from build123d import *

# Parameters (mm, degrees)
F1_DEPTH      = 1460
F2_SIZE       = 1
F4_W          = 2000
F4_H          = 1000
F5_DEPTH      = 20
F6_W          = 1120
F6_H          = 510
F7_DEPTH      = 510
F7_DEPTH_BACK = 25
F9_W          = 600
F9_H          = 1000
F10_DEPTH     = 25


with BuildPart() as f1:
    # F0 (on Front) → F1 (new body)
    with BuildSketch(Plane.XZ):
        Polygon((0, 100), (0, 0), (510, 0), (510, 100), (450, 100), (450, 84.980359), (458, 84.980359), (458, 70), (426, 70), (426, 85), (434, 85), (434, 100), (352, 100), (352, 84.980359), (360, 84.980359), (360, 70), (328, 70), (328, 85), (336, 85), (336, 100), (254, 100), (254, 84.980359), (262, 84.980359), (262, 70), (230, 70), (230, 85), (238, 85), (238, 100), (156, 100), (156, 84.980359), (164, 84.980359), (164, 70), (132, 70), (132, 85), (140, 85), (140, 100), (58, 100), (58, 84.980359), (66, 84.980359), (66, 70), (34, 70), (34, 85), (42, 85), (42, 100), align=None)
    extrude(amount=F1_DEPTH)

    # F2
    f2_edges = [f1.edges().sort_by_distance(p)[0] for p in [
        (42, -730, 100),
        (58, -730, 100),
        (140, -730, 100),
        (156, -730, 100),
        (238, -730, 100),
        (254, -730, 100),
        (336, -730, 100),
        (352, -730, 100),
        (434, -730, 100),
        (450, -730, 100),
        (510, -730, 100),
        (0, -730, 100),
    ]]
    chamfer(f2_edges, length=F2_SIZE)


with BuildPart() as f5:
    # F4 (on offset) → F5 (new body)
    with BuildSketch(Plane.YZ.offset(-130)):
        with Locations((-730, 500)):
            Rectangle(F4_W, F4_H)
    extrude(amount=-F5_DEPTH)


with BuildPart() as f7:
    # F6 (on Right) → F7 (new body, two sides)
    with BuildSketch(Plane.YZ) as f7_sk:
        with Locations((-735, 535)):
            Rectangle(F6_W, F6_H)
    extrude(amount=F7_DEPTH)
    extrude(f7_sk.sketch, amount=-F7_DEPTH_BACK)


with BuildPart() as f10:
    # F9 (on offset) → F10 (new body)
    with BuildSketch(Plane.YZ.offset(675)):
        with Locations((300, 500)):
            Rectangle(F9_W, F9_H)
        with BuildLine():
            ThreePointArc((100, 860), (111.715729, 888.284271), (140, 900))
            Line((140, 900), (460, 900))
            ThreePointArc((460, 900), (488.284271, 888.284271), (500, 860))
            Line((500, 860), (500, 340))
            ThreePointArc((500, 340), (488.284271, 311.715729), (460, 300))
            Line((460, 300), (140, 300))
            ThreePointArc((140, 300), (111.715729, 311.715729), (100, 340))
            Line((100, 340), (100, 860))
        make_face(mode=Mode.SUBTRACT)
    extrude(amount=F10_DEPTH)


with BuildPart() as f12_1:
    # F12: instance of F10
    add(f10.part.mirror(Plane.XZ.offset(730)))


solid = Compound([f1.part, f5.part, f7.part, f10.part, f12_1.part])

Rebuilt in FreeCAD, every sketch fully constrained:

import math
import FreeCAD as App
import Part
import Sketcher

V = App.Vector


def edges_at(feature, points):
    """Names of the edges that pass closest to the given points."""
    edges = feature.Shape.Edges
    near = lambda p: min(range(len(edges)), key=lambda i: edges[i].distToShape(Part.Vertex(*p))[0])
    return sorted({f"Edge{near(p) + 1}" for p in points})


def add_polygon(sketch, points):
    """Adds a closed chain of lines whose ends are joined by coincident constraints."""
    first, n = sketch.GeometryCount, len(points)
    for a, b in zip(points, points[1:] + points[:1]):
        sketch.addGeometry(Part.LineSegment(App.Vector(*a, 0), App.Vector(*b, 0)), False)
    for i in range(n):
        sketch.addConstraint(Sketcher.Constraint("Coincident", first + i, 2, first + (i + 1) % n, 1))

doc = App.newDocument("Part")
body = doc.addObject("PartDesign::Body", "Body")

# Sketch on XZ plane
sketch1 = body.newObject("Sketcher::SketchObject", "Sketch")
sketch1.AttachmentSupport = (doc.getObject("XZ_Plane"), [""])
sketch1.MapMode = "FlatFace"
add_polygon(sketch1, [(0, 100), (0, 0), (510, 0), (510, 100), (450, 100), (450, 84.980359), (458, 84.980359), (458, 70), (426, 70), (426, 85), (434, 85), (434, 100), (352, 100), (352, 84.980359), (360, 84.980359), (360, 70), (328, 70), (328, 85), (336, 85), (336, 100), (254, 100), (254, 84.980359), (262, 84.980359), (262, 70), (230, 70), (230, 85), (238, 85), (238, 100), (156, 100), (156, 84.980359), (164, 84.980359), (164, 70), (132, 70), (132, 85), (140, 85), (140, 100), (58, 100), (58, 84.980359), (66, 84.980359), (66, 70), (34, 70), (34, 85), (42, 85), (42, 100)])  # lines 0-43
sketch1.addConstraint([
    Sketcher.Constraint("Vertical", 0),
    Sketcher.Constraint("Horizontal", 1),
    Sketcher.Constraint("Vertical", 2),
    Sketcher.Constraint("Horizontal", 3),
    Sketcher.Constraint("Vertical", 4),
    Sketcher.Constraint("Horizontal", 5),
    Sketcher.Constraint("Vertical", 6),
    Sketcher.Constraint("Horizontal", 7),
    Sketcher.Constraint("Vertical", 8),
    Sketcher.Constraint("Horizontal", 9),
    Sketcher.Constraint("Vertical", 10),
    Sketcher.Constraint("Horizontal", 11),
    Sketcher.Constraint("Vertical", 12),
    Sketcher.Constraint("Horizontal", 13),
    Sketcher.Constraint("Vertical", 14),
    Sketcher.Constraint("Horizontal", 15),
    Sketcher.Constraint("Vertical", 16),
    Sketcher.Constraint("Horizontal", 17),
    Sketcher.Constraint("Vertical", 18),
    Sketcher.Constraint("Horizontal", 19),
    Sketcher.Constraint("Vertical", 20),
    Sketcher.Constraint("Horizontal", 21),
    Sketcher.Constraint("Vertical", 22),
    Sketcher.Constraint("Horizontal", 23),
    Sketcher.Constraint("Vertical", 24),
    Sketcher.Constraint("Horizontal", 25),
    Sketcher.Constraint("Vertical", 26),
    Sketcher.Constraint("Horizontal", 27),
    Sketcher.Constraint("Vertical", 28),
    Sketcher.Constraint("Horizontal", 29),
    Sketcher.Constraint("Vertical", 30),
    Sketcher.Constraint("Horizontal", 31),
    Sketcher.Constraint("Vertical", 32),
    Sketcher.Constraint("Horizontal", 33),
    Sketcher.Constraint("Vertical", 34),
    Sketcher.Constraint("Horizontal", 35),
    Sketcher.Constraint("Vertical", 36),
    Sketcher.Constraint("Horizontal", 37),
    Sketcher.Constraint("Vertical", 38),
    Sketcher.Constraint("Horizontal", 39),
    Sketcher.Constraint("Vertical", 40),
    Sketcher.Constraint("Horizontal", 41),
    Sketcher.Constraint("Vertical", 42),
    Sketcher.Constraint("Horizontal", 43),
    Sketcher.Constraint("Coincident", 0, 2, -1, 1),
    Sketcher.Constraint("Horizontal", 3, 2, 10, 2),
    Sketcher.Constraint("Horizontal", 5, 2, 12, 2),
    Sketcher.Constraint("Horizontal", 7, 2, 14, 2),
    Sketcher.Constraint("Horizontal", 9, 2, 16, 2),
    Sketcher.Constraint("Horizontal", 11, 2, 18, 2),
    Sketcher.Constraint("Horizontal", 13, 2, 20, 2),
    Sketcher.Constraint("Horizontal", 15, 2, 22, 2),
    Sketcher.Constraint("Horizontal", 17, 2, 24, 2),
    Sketcher.Constraint("Horizontal", 19, 2, 26, 2),
    Sketcher.Constraint("Horizontal", 21, 2, 28, 2),
    Sketcher.Constraint("Horizontal", 23, 2, 30, 2),
    Sketcher.Constraint("Horizontal", 25, 2, 32, 2),
    Sketcher.Constraint("Horizontal", 27, 2, 34, 2),
    Sketcher.Constraint("Horizontal", 29, 2, 36, 2),
    Sketcher.Constraint("Horizontal", 31, 2, 38, 2),
    Sketcher.Constraint("Horizontal", 33, 2, 40, 2),
    Sketcher.Constraint("Horizontal", 35, 2, 42, 2),
    Sketcher.Constraint("Equal", 5, 9),
    Sketcher.Constraint("Equal", 9, 13),
    Sketcher.Constraint("Equal", 7, 15),
    Sketcher.Constraint("Equal", 13, 17),
    Sketcher.Constraint("Equal", 11, 19),
    Sketcher.Constraint("Equal", 17, 21),
    Sketcher.Constraint("Equal", 15, 23),
    Sketcher.Constraint("Equal", 21, 25),
    Sketcher.Constraint("Equal", 19, 27),
    Sketcher.Constraint("Equal", 25, 29),
    Sketcher.Constraint("Equal", 23, 31),
    Sketcher.Constraint("Equal", 29, 33),
    Sketcher.Constraint("Equal", 27, 35),
    Sketcher.Constraint("Equal", 33, 37),
    Sketcher.Constraint("Equal", 31, 39),
    Sketcher.Constraint("Equal", 37, 41),
    Sketcher.Constraint("Equal", 8, 10),
    Sketcher.Constraint("DistanceX", 1, 1, 1, 2, 510.0),
    Sketcher.Constraint("DistanceX", 3, 2, 3, 1, 60.0),
    Sketcher.Constraint("DistanceX", 5, 1, 5, 2, 8.0),
    Sketcher.Constraint("DistanceX", 7, 2, 7, 1, 32.0),
    Sketcher.Constraint("DistanceX", 11, 2, 11, 1, 82.0),
    Sketcher.Constraint("DistanceY", 0, 2, 0, 1, 100.0),
    Sketcher.Constraint("DistanceY", 8, 1, 8, 2, 15.0),
    Sketcher.Constraint("DistanceY", 4, 2, 4, 1, 15.019641),
])
pad1 = body.newObject("PartDesign::Pad", "Pad")
pad1.Profile = sketch1
pad1.Length = 1460
doc.recompute()

chamfer = body.newObject("PartDesign::Chamfer", "Chamfer")
chamfer.Base = (pad1, edges_at(pad1, [
    (42, -730, 100),
    (58, -730, 100),
    (140, -730, 100),
    (156, -730, 100),
    (238, -730, 100),
    (254, -730, 100),
    (336, -730, 100),
    (352, -730, 100),
    (434, -730, 100),
    (450, -730, 100),
    (510, -730, 100),
    (0, -730, 100),
]))
chamfer.Size = 1
body2 = doc.addObject("PartDesign::Body", "Body001")

# Sketch on YZ plane
sketch2 = body2.newObject("Sketcher::SketchObject", "Sketch001")
sketch2.AttachmentSupport = (doc.getObject("YZ_Plane001"), [""])
sketch2.MapMode = "FlatFace"
sketch2.AttachmentOffset = App.Placement(V(0, 0, -130), App.Rotation())
add_polygon(sketch2, [(-1730, 1000), (-1730, 0), (270, 0), (270, 1000)])  # lines 0-3
sketch2.addConstraint([
    Sketcher.Constraint("Vertical", 0),
    Sketcher.Constraint("Horizontal", 1),
    Sketcher.Constraint("Vertical", 2),
    Sketcher.Constraint("Horizontal", 3),
    Sketcher.Constraint("PointOnObject", 0, 2, -1),
    Sketcher.Constraint("DistanceX", 1, 1, 1, 2, 2000.0),
    Sketcher.Constraint("DistanceY", 0, 2, 0, 1, 1000.0),
    Sketcher.Constraint("DistanceX", 0, 2, -1, 1, 1730.0),
])
pad2 = body2.newObject("PartDesign::Pad", "Pad001")
pad2.Profile = sketch2
pad2.Length = 20
pad2.Reversed = True
body3 = doc.addObject("PartDesign::Body", "Body002")

# Sketch on YZ plane
sketch3 = body3.newObject("Sketcher::SketchObject", "Sketch002")
sketch3.AttachmentSupport = (doc.getObject("YZ_Plane002"), [""])
sketch3.MapMode = "FlatFace"
add_polygon(sketch3, [(-1295, 790), (-1295, 280), (-175, 280), (-175, 790)])  # lines 0-3
sketch3.addConstraint([
    Sketcher.Constraint("Vertical", 0),
    Sketcher.Constraint("Horizontal", 1),
    Sketcher.Constraint("Vertical", 2),
    Sketcher.Constraint("Horizontal", 3),
    Sketcher.Constraint("DistanceX", 1, 1, 1, 2, 1120.0),
    Sketcher.Constraint("DistanceY", 0, 2, 0, 1, 510.0),
    Sketcher.Constraint("DistanceX", 0, 2, -1, 1, 1295.0),
    Sketcher.Constraint("DistanceY", -1, 1, 0, 2, 280.0),
])
pad3 = body3.newObject("PartDesign::Pad", "Pad002")
pad3.Profile = sketch3
pad3.Type = "TwoLengths"
pad3.Length = 510
pad3.Length2 = 25
body4 = doc.addObject("PartDesign::Body", "Body003")

# Sketch on YZ plane
sketch4 = body4.newObject("Sketcher::SketchObject", "Sketch003")
sketch4.AttachmentSupport = (doc.getObject("YZ_Plane003"), [""])
sketch4.MapMode = "FlatFace"
sketch4.AttachmentOffset = App.Placement(V(0, 0, 675), App.Rotation())
add_polygon(sketch4, [(0, 1000), (0, 0), (600, 0), (600, 1000)])  # lines 0-3
sketch4.addGeometry(Part.LineSegment(V(100, 340, 0), V(100, 860, 0)), False)  # 4
sketch4.addGeometry(Part.ArcOfCircle(Part.Circle(V(140.000001, 859.999999, 0), V(0, 0, 1), 40.000001), math.radians(90.000001), math.radians(179.999999)), False)  # 5
sketch4.addGeometry(Part.LineSegment(V(140, 900, 0), V(460, 900, 0)), False)  # 6
sketch4.addGeometry(Part.ArcOfCircle(Part.Circle(V(459.999999, 859.999999, 0), V(0, 0, 1), 40.000001), math.radians(0.000001), math.radians(89.999999)), False)  # 7
sketch4.addGeometry(Part.LineSegment(V(500, 860, 0), V(500, 340, 0)), False)  # 8
sketch4.addGeometry(Part.ArcOfCircle(Part.Circle(V(459.999999, 340.000001, 0), V(0, 0, 1), 40.000001), math.radians(-89.999999), math.radians(-0.000001)), False)  # 9
sketch4.addGeometry(Part.LineSegment(V(460, 300, 0), V(140, 300, 0)), False)  # 10
sketch4.addGeometry(Part.ArcOfCircle(Part.Circle(V(140.000001, 340.000001, 0), V(0, 0, 1), 40.000001), math.radians(-179.999999), math.radians(-90.000001)), False)  # 11
sketch4.addConstraint([
    Sketcher.Constraint("Tangent", 4, 2, 5, 2),
    Sketcher.Constraint("Tangent", 5, 1, 6, 1),
    Sketcher.Constraint("Tangent", 6, 2, 7, 2),
    Sketcher.Constraint("Tangent", 7, 1, 8, 1),
    Sketcher.Constraint("Tangent", 8, 2, 9, 2),
    Sketcher.Constraint("Tangent", 9, 1, 10, 1),
    Sketcher.Constraint("Tangent", 10, 2, 11, 2),
    Sketcher.Constraint("Tangent", 11, 1, 4, 1),
    Sketcher.Constraint("Vertical", 0),
    Sketcher.Constraint("Horizontal", 1),
    Sketcher.Constraint("Vertical", 2),
    Sketcher.Constraint("Horizontal", 3),
    Sketcher.Constraint("Vertical", 4),
    Sketcher.Constraint("Horizontal", 6),
    Sketcher.Constraint("Vertical", 8),
    Sketcher.Constraint("Horizontal", 10),
    Sketcher.Constraint("Coincident", 0, 2, -1, 1),
    Sketcher.Constraint("Equal", 5, 7),
    Sketcher.Constraint("Equal", 7, 9),
    Sketcher.Constraint("Equal", 9, 11),
    Sketcher.Constraint("Radius", 5, 40.000001),
    Sketcher.Constraint("DistanceX", 1, 1, 1, 2, 600.0),
    Sketcher.Constraint("DistanceX", 6, 1, 6, 2, 320.0),
    Sketcher.Constraint("DistanceY", 0, 2, 0, 1, 1000.0),
    Sketcher.Constraint("DistanceY", 4, 1, 4, 2, 520.0),
    Sketcher.Constraint("DistanceX", -1, 1, 5, 3, 140.000001),
    Sketcher.Constraint("DistanceY", -1, 1, 5, 3, 859.999999),
])
pad4 = body4.newObject("PartDesign::Pad", "Pad003")
pad4.Profile = sketch4
pad4.Length = 25
body5 = doc.addObject("PartDesign::Body", "Body004")
doc.recompute()

mirroring = doc.addObject("Part::Mirroring", "Mirroring")
mirroring.Source = body4
mirroring.Base = V(0, -730, 0)
mirroring.Normal = V(0, -1, 0)
body5.BaseFeature = mirroring
doc.recompute()
mirroring.Visibility = False

doc.recompute()
